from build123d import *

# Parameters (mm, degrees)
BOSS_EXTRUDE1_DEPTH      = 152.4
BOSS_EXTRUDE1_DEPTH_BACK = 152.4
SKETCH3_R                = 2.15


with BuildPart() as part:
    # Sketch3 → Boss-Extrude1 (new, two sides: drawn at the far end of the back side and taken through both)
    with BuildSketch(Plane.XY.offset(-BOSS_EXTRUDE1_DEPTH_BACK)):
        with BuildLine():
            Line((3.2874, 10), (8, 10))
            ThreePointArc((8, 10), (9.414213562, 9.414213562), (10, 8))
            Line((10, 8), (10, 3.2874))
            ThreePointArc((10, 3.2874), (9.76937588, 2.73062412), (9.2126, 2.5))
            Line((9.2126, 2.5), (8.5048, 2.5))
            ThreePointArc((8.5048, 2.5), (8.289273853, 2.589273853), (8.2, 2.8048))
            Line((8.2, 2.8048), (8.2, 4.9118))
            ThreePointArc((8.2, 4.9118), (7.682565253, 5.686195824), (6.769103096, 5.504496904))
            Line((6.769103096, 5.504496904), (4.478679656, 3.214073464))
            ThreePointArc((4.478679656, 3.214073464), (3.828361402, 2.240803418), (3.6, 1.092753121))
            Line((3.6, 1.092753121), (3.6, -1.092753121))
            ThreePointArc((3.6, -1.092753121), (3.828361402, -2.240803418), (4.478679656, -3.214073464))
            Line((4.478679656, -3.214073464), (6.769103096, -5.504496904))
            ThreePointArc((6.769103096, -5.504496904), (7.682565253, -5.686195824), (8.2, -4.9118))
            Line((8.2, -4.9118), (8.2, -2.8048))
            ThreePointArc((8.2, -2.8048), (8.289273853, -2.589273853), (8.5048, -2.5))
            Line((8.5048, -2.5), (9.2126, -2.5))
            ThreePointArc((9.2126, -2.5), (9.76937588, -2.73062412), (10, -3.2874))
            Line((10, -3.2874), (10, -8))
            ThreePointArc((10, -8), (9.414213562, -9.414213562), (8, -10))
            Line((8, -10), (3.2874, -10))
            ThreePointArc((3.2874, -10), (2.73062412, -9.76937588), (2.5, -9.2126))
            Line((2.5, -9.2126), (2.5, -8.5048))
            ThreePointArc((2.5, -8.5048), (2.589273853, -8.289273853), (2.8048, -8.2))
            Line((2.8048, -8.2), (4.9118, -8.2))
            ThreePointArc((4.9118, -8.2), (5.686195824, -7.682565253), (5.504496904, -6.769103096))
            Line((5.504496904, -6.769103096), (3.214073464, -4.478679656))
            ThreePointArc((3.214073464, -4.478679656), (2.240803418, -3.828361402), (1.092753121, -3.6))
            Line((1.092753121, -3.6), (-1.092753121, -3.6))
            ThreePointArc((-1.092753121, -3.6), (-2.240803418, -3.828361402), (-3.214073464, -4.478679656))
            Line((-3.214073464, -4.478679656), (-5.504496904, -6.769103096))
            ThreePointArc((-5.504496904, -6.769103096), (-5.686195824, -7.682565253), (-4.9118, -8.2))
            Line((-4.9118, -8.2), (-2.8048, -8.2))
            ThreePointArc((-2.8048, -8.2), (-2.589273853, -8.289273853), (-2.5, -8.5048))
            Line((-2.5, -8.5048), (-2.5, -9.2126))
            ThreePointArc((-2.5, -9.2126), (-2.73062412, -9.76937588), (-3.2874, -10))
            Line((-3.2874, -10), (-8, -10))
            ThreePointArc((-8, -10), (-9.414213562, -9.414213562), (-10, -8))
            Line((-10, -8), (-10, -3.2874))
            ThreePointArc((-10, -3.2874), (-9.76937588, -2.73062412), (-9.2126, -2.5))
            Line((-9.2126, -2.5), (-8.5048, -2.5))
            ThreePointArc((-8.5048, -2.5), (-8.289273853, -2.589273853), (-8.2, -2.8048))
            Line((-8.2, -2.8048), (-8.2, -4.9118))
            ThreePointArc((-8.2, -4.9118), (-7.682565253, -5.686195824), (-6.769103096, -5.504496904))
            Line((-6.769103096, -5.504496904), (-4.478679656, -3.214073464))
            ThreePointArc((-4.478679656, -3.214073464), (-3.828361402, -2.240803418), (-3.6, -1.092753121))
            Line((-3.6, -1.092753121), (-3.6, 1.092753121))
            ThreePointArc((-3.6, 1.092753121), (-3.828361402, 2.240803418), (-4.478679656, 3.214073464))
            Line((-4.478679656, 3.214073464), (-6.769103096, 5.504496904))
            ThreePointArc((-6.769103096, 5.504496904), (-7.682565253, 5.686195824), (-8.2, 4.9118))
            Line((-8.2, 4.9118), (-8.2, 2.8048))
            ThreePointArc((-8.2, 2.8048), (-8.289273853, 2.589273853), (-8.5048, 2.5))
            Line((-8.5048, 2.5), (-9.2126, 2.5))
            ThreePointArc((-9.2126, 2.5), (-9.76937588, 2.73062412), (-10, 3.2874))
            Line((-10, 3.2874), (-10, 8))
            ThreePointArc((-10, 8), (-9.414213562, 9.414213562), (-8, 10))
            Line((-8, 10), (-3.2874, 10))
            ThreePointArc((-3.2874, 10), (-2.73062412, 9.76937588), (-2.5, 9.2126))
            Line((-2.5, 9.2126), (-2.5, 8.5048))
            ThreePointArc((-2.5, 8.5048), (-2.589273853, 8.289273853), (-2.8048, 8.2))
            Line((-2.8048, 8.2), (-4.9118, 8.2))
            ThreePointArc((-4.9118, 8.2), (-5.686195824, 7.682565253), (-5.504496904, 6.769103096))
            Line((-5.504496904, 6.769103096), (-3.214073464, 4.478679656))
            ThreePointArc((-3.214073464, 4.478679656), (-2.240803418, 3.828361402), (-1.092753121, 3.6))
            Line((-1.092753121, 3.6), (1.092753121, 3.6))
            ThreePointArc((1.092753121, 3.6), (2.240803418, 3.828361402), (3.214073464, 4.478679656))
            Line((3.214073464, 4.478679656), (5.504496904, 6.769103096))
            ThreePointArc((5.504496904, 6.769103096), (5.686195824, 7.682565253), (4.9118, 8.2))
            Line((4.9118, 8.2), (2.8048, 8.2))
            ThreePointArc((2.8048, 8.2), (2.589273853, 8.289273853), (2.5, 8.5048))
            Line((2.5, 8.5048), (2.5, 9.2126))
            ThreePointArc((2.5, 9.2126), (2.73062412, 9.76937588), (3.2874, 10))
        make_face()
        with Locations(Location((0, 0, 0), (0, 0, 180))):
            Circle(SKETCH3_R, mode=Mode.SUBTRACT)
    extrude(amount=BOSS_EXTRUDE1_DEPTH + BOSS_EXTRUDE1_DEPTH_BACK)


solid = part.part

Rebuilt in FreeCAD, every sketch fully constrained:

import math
import FreeCAD as App
import Part
import Sketcher
Q = App.Units.Quantity

doc = App.newDocument("Part")
body = doc.addObject("PartDesign::Body", "Body")

sketch1 = doc.addObject("Sketcher::SketchObject", "Sketch")
body.addObject(sketch1)
sketch1.AttachmentSupport = (doc.XY_Plane, [""])
sketch1.MapMode = "FlatFace"
sketch1.addGeometry([
    Part.LineSegment(App.Vector(8, 10, 0), App.Vector(3.2874, 10, 0)),
    Part.ArcOfCircle(Part.Circle(App.Vector(3.2874, 9.2126, 0), App.Vector(0, 0, 1), 0.7874), math.radians(90), math.radians(180)),
    Part.LineSegment(App.Vector(2.5, 9.2126, 0), App.Vector(2.5, 8.5048, 0)),
    Part.ArcOfCircle(Part.Circle(App.Vector(2.8048, 8.5048, 0), App.Vector(0, 0, 1), 0.3048), math.radians(180), math.radians(270)),
    Part.LineSegment(App.Vector(2.8048, 8.2, 0), App.Vector(4.9118, 8.2, 0)),
    Part.ArcOfCircle(Part.Circle(App.Vector(4.9118, 7.3618, 0), App.Vector(0, 0, 1), 0.8382), math.radians(-45), math.radians(90)),
    Part.LineSegment(App.Vector(5.504497, 6.769103, 0), App.Vector(3.214073, 4.47868, 0)),
    Part.ArcOfCircle(Part.Circle(App.Vector(1.092753, 6.6, 0), App.Vector(0, 0, 1), 3), math.radians(-90), math.radians(-45)),
    Part.LineSegment(App.Vector(1.092753, 3.6, 0), App.Vector(-1.092753, 3.6, 0)),
    Part.ArcOfCircle(Part.Circle(App.Vector(-1.092753, 6.6, 0), App.Vector(0, 0, 1), 3), math.radians(-135), math.radians(-90)),
    Part.LineSegment(App.Vector(-3.214073, 4.47868, 0), App.Vector(-5.504497, 6.769103, 0)),
    Part.ArcOfCircle(Part.Circle(App.Vector(-4.9118, 7.3618, 0), App.Vector(0, 0, 1), 0.8382), math.radians(90), math.radians(225)),
    Part.LineSegment(App.Vector(-4.9118, 8.2, 0), App.Vector(-2.8048, 8.2, 0)),
    Part.ArcOfCircle(Part.Circle(App.Vector(-2.8048, 8.5048, 0), App.Vector(0, 0, 1), 0.3048), math.radians(-90), math.radians(0)),
    Part.LineSegment(App.Vector(-2.5, 8.5048, 0), App.Vector(-2.5, 9.2126, 0)),
    Part.ArcOfCircle(Part.Circle(App.Vector(-3.2874, 9.2126, 0), App.Vector(0, 0, 1), 0.7874), math.radians(0), math.radians(90)),
    Part.LineSegment(App.Vector(-3.2874, 10, 0), App.Vector(-8, 10, 0)),
    Part.ArcOfCircle(Part.Circle(App.Vector(-8, 8, 0), App.Vector(0, 0, 1), 2), math.radians(90), math.radians(180)),
    Part.LineSegment(App.Vector(-10, 8, 0), App.Vector(-10, 3.2874, 0)),
    Part.ArcOfCircle(Part.Circle(App.Vector(-9.2126, 3.2874, 0), App.Vector(0, 0, 1), 0.7874), math.radians(180), math.radians(270)),
    Part.LineSegment(App.Vector(-9.2126, 2.5, 0), App.Vector(-8.5048, 2.5, 0)),
    Part.ArcOfCircle(Part.Circle(App.Vector(-8.5048, 2.8048, 0), App.Vector(0, 0, 1), 0.3048), math.radians(-90), math.radians(0)),
    Part.LineSegment(App.Vector(-8.2, 2.8048, 0), App.Vector(-8.2, 4.9118, 0)),
    Part.ArcOfCircle(Part.Circle(App.Vector(-7.3618, 4.9118, 0), App.Vector(0, 0, 1), 0.8382), math.radians(45), math.radians(180)),
    Part.LineSegment(App.Vector(-6.769103, 5.504497, 0), App.Vector(-4.47868, 3.214073, 0)),
    Part.ArcOfCircle(Part.Circle(App.Vector(-6.6, 1.092753, 0), App.Vector(0, 0, 1), 3), math.radians(0), math.radians(45)),
    Part.LineSegment(App.Vector(-3.6, 1.092753, 0), App.Vector(-3.6, -1.092753, 0)),
    Part.ArcOfCircle(Part.Circle(App.Vector(-6.6, -1.092753, 0), App.Vector(0, 0, 1), 3), math.radians(-45), math.radians(0)),
    Part.LineSegment(App.Vector(-4.47868, -3.214073, 0), App.Vector(-6.769103, -5.504497, 0)),
    Part.ArcOfCircle(Part.Circle(App.Vector(-7.3618, -4.9118, 0), App.Vector(0, 0, 1), 0.8382), math.radians(180), math.radians(315)),
    Part.LineSegment(App.Vector(-8.2, -4.9118, 0), App.Vector(-8.2, -2.8048, 0)),
    Part.ArcOfCircle(Part.Circle(App.Vector(-8.5048, -2.8048, 0), App.Vector(0, 0, 1), 0.3048), math.radians(0), math.radians(90)),
    Part.LineSegment(App.Vector(-8.5048, -2.5, 0), App.Vector(-9.2126, -2.5, 0)),
    Part.ArcOfCircle(Part.Circle(App.Vector(-9.2126, -3.2874, 0), App.Vector(0, 0, 1), 0.7874), math.radians(90), math.radians(180)),
    Part.LineSegment(App.Vector(-10, -3.2874, 0), App.Vector(-10, -8, 0)),
    Part.ArcOfCircle(Part.Circle(App.Vector(-8, -8, 0), App.Vector(0, 0, 1), 2), math.radians(-180), math.radians(-90)),
    Part.LineSegment(App.Vector(-8, -10, 0), App.Vector(-3.2874, -10, 0)),
    Part.ArcOfCircle(Part.Circle(App.Vector(-3.2874, -9.2126, 0), App.Vector(0, 0, 1), 0.7874), math.radians(-90), math.radians(0)),
    Part.LineSegment(App.Vector(-2.5, -9.2126, 0), App.Vector(-2.5, -8.5048, 0)),
    Part.ArcOfCircle(Part.Circle(App.Vector(-2.8048, -8.5048, 0), App.Vector(0, 0, 1), 0.3048), math.radians(0), math.radians(90)),
    Part.LineSegment(App.Vector(-2.8048, -8.2, 0), App.Vector(-4.9118, -8.2, 0)),
    Part.ArcOfCircle(Part.Circle(App.Vector(-4.9118, -7.3618, 0), App.Vector(0, 0, 1), 0.8382), math.radians(135), math.radians(270)),
    Part.LineSegment(App.Vector(-5.504497, -6.769103, 0), App.Vector(-3.214073, -4.47868, 0)),
    Part.ArcOfCircle(Part.Circle(App.Vector(-1.092753, -6.6, 0), App.Vector(0, 0, 1), 3), math.radians(90), math.radians(135)),
    Part.LineSegment(App.Vector(-1.092753, -3.6, 0), App.Vector(1.092753, -3.6, 0)),
    Part.ArcOfCircle(Part.Circle(App.Vector(1.092753, -6.6, 0), App.Vector(0, 0, 1), 3), math.radians(45), math.radians(90)),
    Part.LineSegment(App.Vector(3.214073, -4.47868, 0), App.Vector(5.504497, -6.769103, 0)),
    Part.ArcOfCircle(Part.Circle(App.Vector(4.9118, -7.3618, 0), App.Vector(0, 0, 1), 0.8382), math.radians(-90), math.radians(45)),
    Part.LineSegment(App.Vector(4.9118, -8.2, 0), App.Vector(2.8048, -8.2, 0)),
    Part.ArcOfCircle(Part.Circle(App.Vector(2.8048, -8.5048, 0), App.Vector(0, 0, 1), 0.3048), math.radians(90), math.radians(180)),
    Part.LineSegment(App.Vector(2.5, -8.5048, 0), App.Vector(2.5, -9.2126, 0)),
    Part.ArcOfCircle(Part.Circle(App.Vector(3.2874, -9.2126, 0), App.Vector(0, 0, 1), 0.7874), math.radians(180), math.radians(270)),
    Part.LineSegment(App.Vector(3.2874, -10, 0), App.Vector(8, -10, 0)),
    Part.ArcOfCircle(Part.Circle(App.Vector(8, -8, 0), App.Vector(0, 0, 1), 2), math.radians(-90), math.radians(0)),
    Part.LineSegment(App.Vector(10, -8, 0), App.Vector(10, -3.2874, 0)),
    Part.ArcOfCircle(Part.Circle(App.Vector(9.2126, -3.2874, 0), App.Vector(0, 0, 1), 0.7874), math.radians(0), math.radians(90)),
    Part.LineSegment(App.Vector(9.2126, -2.5, 0), App.Vector(8.5048, -2.5, 0)),
    Part.ArcOfCircle(Part.Circle(App.Vector(8.5048, -2.8048, 0), App.Vector(0, 0, 1), 0.3048), math.radians(90), math.radians(180)),
    Part.LineSegment(App.Vector(8.2, -2.8048, 0), App.Vector(8.2, -4.9118, 0)),
    Part.ArcOfCircle(Part.Circle(App.Vector(7.3618, -4.9118, 0), App.Vector(0, 0, 1), 0.8382), math.radians(-135), math.radians(0)),
    Part.LineSegment(App.Vector(6.769103, -5.504497, 0), App.Vector(4.47868, -3.214073, 0)),
    Part.ArcOfCircle(Part.Circle(App.Vector(6.6, -1.092753, 0), App.Vector(0, 0, 1), 3), math.radians(180), math.radians(225)),
    Part.LineSegment(App.Vector(3.6, -1.092753, 0), App.Vector(3.6, 1.092753, 0)),
    Part.ArcOfCircle(Part.Circle(App.Vector(6.6, 1.092753, 0), App.Vector(0, 0, 1), 3), math.radians(135), math.radians(180)),
    Part.LineSegment(App.Vector(4.47868, 3.214073, 0), App.Vector(6.769103, 5.504497, 0)),
    Part.ArcOfCircle(Part.Circle(App.Vector(7.3618, 4.9118, 0), App.Vector(0, 0, 1), 0.8382), math.radians(0), math.radians(135)),
    Part.LineSegment(App.Vector(8.2, 4.9118, 0), App.Vector(8.2, 2.8048, 0)),
    Part.ArcOfCircle(Part.Circle(App.Vector(8.5048, 2.8048, 0), App.Vector(0, 0, 1), 0.3048), math.radians(180), math.radians(270)),
    Part.LineSegment(App.Vector(8.5048, 2.5, 0), App.Vector(9.2126, 2.5, 0)),
    Part.ArcOfCircle(Part.Circle(App.Vector(9.2126, 3.2874, 0), App.Vector(0, 0, 1), 0.7874), math.radians(-90), math.radians(0)),
    Part.LineSegment(App.Vector(10, 3.2874, 0), App.Vector(10, 8, 0)),
    Part.ArcOfCircle(Part.Circle(App.Vector(8, 8, 0), App.Vector(0, 0, 1), 2), math.radians(0), math.radians(90)),
    Part.Circle(App.Vector(0, 0, 0), App.Vector(0, 0, 1), 2.15),
], False)
sketch1.addConstraint([
    Sketcher.Constraint("Tangent", 0, 2, 1, 1),
    Sketcher.Constraint("Tangent", 1, 2, 2, 1),
    Sketcher.Constraint("Tangent", 2, 2, 3, 1),
    Sketcher.Constraint("Tangent", 3, 2, 4, 1),
    Sketcher.Constraint("Tangent", 4, 2, 5, 2),
    Sketcher.Constraint("Tangent", 5, 1, 6, 1),
    Sketcher.Constraint("Tangent", 6, 2, 7, 2),
    Sketcher.Constraint("Tangent", 7, 1, 8, 1),
    Sketcher.Constraint("Tangent", 8, 2, 9, 2),
    Sketcher.Constraint("Tangent", 9, 1, 10, 1),
    Sketcher.Constraint("Tangent", 10, 2, 11, 2),
    Sketcher.Constraint("Tangent", 11, 1, 12, 1),
    Sketcher.Constraint("Tangent", 12, 2, 13, 1),
    Sketcher.Constraint("Tangent", 13, 2, 14, 1),
    Sketcher.Constraint("Tangent", 14, 2, 15, 1),
    Sketcher.Constraint("Tangent", 15, 2, 16, 1),
    Sketcher.Constraint("Tangent", 16, 2, 17, 1),
    Sketcher.Constraint("Tangent", 17, 2, 18, 1),
    Sketcher.Constraint("Tangent", 18, 2, 19, 1),
    Sketcher.Constraint("Tangent", 19, 2, 20, 1),
    Sketcher.Constraint("Tangent", 20, 2, 21, 1),
    Sketcher.Constraint("Tangent", 21, 2, 22, 1),
    Sketcher.Constraint("Tangent", 22, 2, 23, 2),
    Sketcher.Constraint("Tangent", 23, 1, 24, 1),
    Sketcher.Constraint("Tangent", 24, 2, 25, 2),
    Sketcher.Constraint("Tangent", 25, 1, 26, 1),
    Sketcher.Constraint("Tangent", 26, 2, 27, 2),
    Sketcher.Constraint("Tangent", 27, 1, 28, 1),
    Sketcher.Constraint("Tangent", 28, 2, 29, 2),
    Sketcher.Constraint("Tangent", 29, 1, 30, 1),
    Sketcher.Constraint("Tangent", 30, 2, 31, 1),
    Sketcher.Constraint("Tangent", 31, 2, 32, 1),
    Sketcher.Constraint("Tangent", 32, 2, 33, 1),
    Sketcher.Constraint("Tangent", 33, 2, 34, 1),
    Sketcher.Constraint("Tangent", 34, 2, 35, 1),
    Sketcher.Constraint("Tangent", 35, 2, 36, 1),
    Sketcher.Constraint("Tangent", 36, 2, 37, 1),
    Sketcher.Constraint("Tangent", 37, 2, 38, 1),
    Sketcher.Constraint("Tangent", 38, 2, 39, 1),
    Sketcher.Constraint("Tangent", 39, 2, 40, 1),
    Sketcher.Constraint("Tangent", 40, 2, 41, 2),
    Sketcher.Constraint("Tangent", 41, 1, 42, 1),
    Sketcher.Constraint("Tangent", 42, 2, 43, 2),
    Sketcher.Constraint("Tangent", 43, 1, 44, 1),
    Sketcher.Constraint("Tangent", 44, 2, 45, 2),
    Sketcher.Constraint("Tangent", 45, 1, 46, 1),
    Sketcher.Constraint("Tangent", 46, 2, 47, 2),
    Sketcher.Constraint("Tangent", 47, 1, 48, 1),
    Sketcher.Constraint("Tangent", 48, 2, 49, 1),
    Sketcher.Constraint("Tangent", 49, 2, 50, 1),
    Sketcher.Constraint("Tangent", 50, 2, 51, 1),
    Sketcher.Constraint("Tangent", 51, 2, 52, 1),
    Sketcher.Constraint("Tangent", 52, 2, 53, 1),
    Sketcher.Constraint("Tangent", 53, 2, 54, 1),
    Sketcher.Constraint("Tangent", 54, 2, 55, 1),
    Sketcher.Constraint("Tangent", 55, 2, 56, 1),
    Sketcher.Constraint("Tangent", 56, 2, 57, 1),
    Sketcher.Constraint("Tangent", 57, 2, 58, 1),
    Sketcher.Constraint("Tangent", 58, 2, 59, 2),
    Sketcher.Constraint("Tangent", 59, 1, 60, 1),
    Sketcher.Constraint("Tangent", 60, 2, 61, 2),
    Sketcher.Constraint("Tangent", 61, 1, 62, 1),
    Sketcher.Constraint("Tangent", 62, 2, 63, 2),
    Sketcher.Constraint("Tangent", 63, 1, 64, 1),
    Sketcher.Constraint("Tangent", 64, 2, 65, 2),
    Sketcher.Constraint("Tangent", 65, 1, 66, 1),
    Sketcher.Constraint("Tangent", 66, 2, 67, 1),
    Sketcher.Constraint("Tangent", 67, 2, 68, 1),
    Sketcher.Constraint("Tangent", 68, 2, 69, 1),
    Sketcher.Constraint("Tangent", 69, 2, 70, 1),
    Sketcher.Constraint("Tangent", 70, 2, 71, 1),
    Sketcher.Constraint("Tangent", 71, 2, 0, 1),
    Sketcher.Constraint("Horizontal", 0),
    Sketcher.Constraint("Vertical", 2),
    Sketcher.Constraint("Horizontal", 4),
    Sketcher.Constraint("Horizontal", 8),
    Sketcher.Constraint("Horizontal", 12),
    Sketcher.Constraint("Vertical", 14),
    Sketcher.Constraint("Horizontal", 16),
    Sketcher.Constraint("Vertical", 18),
    Sketcher.Constraint("Horizontal", 20),
    Sketcher.Constraint("Vertical", 22),
    Sketcher.Constraint("Vertical", 26),
    Sketcher.Constraint("Vertical", 30),
    Sketcher.Constraint("Horizontal", 32),
    Sketcher.Constraint("Vertical", 34),
    Sketcher.Constraint("Horizontal", 36),
    Sketcher.Constraint("Vertical", 38),
    Sketcher.Constraint("Horizontal", 40),
    Sketcher.Constraint("Horizontal", 44),
    Sketcher.Constraint("Horizontal", 48),
    Sketcher.Constraint("Vertical", 50),
    Sketcher.Constraint("Horizontal", 52),
    Sketcher.Constraint("Vertical", 54),
    Sketcher.Constraint("Horizontal", 56),
    Sketcher.Constraint("Vertical", 58),
    Sketcher.Constraint("Vertical", 62),
    Sketcher.Constraint("Vertical", 66),
    Sketcher.Constraint("Horizontal", 68),
    Sketcher.Constraint("Vertical", 70),
    Sketcher.Constraint("Coincident", 72, 3, -1, 1),
    Sketcher.Constraint("Equal", 7, 9),
    Sketcher.Constraint("Equal", 5, 11),
    Sketcher.Constraint("Equal", 3, 13),
    Sketcher.Constraint("Equal", 1, 15),
    Sketcher.Constraint("Equal", 15, 19),
    Sketcher.Constraint("Equal", 13, 21),
    Sketcher.Constraint("Equal", 11, 23),
    Sketcher.Constraint("Equal", 9, 25),
    Sketcher.Constraint("Equal", 25, 27),
    Sketcher.Constraint("Equal", 23, 29),
    Sketcher.Constraint("Equal", 21, 31),
    Sketcher.Constraint("Equal", 19, 33),
    Sketcher.Constraint("Equal", 17, 35),
    Sketcher.Constraint("Equal", 33, 37),
    Sketcher.Constraint("Equal", 31, 39),
    Sketcher.Constraint("Equal", 29, 41),
    Sketcher.Constraint("Equal", 27, 43),
    Sketcher.Constraint("Equal", 43, 45),
    Sketcher.Constraint("Equal", 41, 47),
    Sketcher.Constraint("Equal", 39, 49),
    Sketcher.Constraint("Equal", 37, 51),
    Sketcher.Constraint("Equal", 35, 53),
    Sketcher.Constraint("Equal", 51, 55),
    Sketcher.Constraint("Equal", 49, 57),
    Sketcher.Constraint("Equal", 47, 59),
    Sketcher.Constraint("Equal", 45, 61),
    Sketcher.Constraint("Equal", 61, 63),
    Sketcher.Constraint("Equal", 59, 65),
    Sketcher.Constraint("Equal", 57, 67),
    Sketcher.Constraint("Equal", 55, 69),
    Sketcher.Constraint("Equal", 53, 71),
    Sketcher.Constraint("Symmetric", 1, 3, 37, 3, -1, 1),
    Sketcher.Constraint("Symmetric", 5, 3, 41, 3, -1, 1),
    Sketcher.Constraint("Symmetric", 7, 3, 43, 3, -1, 1),
    Sketcher.Constraint("Symmetric", 11, 3, 47, 3, -1, 1),
    Sketcher.Constraint("Symmetric", 15, 3, 51, 3, -1, 1),
    Sketcher.Constraint("Symmetric", 19, 3, 55, 3, -1, 1),
    Sketcher.Constraint("Symmetric", 23, 3, 59, 3, -1, 1),
    Sketcher.Constraint("Symmetric", 25, 3, 61, 3, -1, 1),
    Sketcher.Constraint("Symmetric", 29, 3, 65, 3, -1, 1),
    Sketcher.Constraint("Symmetric", 33, 3, 69, 3, -1, 1),
    Sketcher.Constraint("Symmetric", 5, 3, 11, 3, -2),
    Sketcher.Constraint("Symmetric", 1, 3, 15, 3, -2),
    Sketcher.Constraint("Symmetric", 33, 3, 55, 3, -2),
    Sketcher.Constraint("Symmetric", 29, 3, 59, 3, -2),
    Sketcher.Constraint("Perpendicular", 6, 10),
    Sketcher.Constraint("Parallel", 10, 24),
    Sketcher.Constraint("Perpendicular", 24, 28),
    Sketcher.Constraint("Perpendicular", 42, 46),
    Sketcher.Constraint("Perpendicular", 60, 64),
    Sketcher.Constraint("Horizontal", 27, 3, 61, 3),
    Sketcher.Constraint("Equal", 68, 2),
    Sketcher.Constraint("Equal", 52, 18),
    Sketcher.Constraint("Equal", 48, 22),
    Sketcher.Constraint("Equal", 44, 26),
    Sketcher.Constraint("Equal", 10, 24),
    Sketcher.Constraint("Radius", 1, Q("0.031 in")),
    Sketcher.Constraint("Radius", 3, Q("0.012 in")),
    Sketcher.Constraint("Radius", 5, Q("0.033 in")),
    Sketcher.Constraint("Diameter", 72, 4.3),
    Sketcher.Constraint("Radius", 7, 3.0),
    Sketcher.Constraint("Radius", 17, 2.0),
    Sketcher.Constraint("DistanceX", 0, 2, 0, 1, 4.7126),
    Sketcher.Constraint("DistanceX", 4, 1, 4, 2, 2.107),
    Sketcher.Constraint("DistanceX", 20, 1, 20, 2, 0.7078),
    Sketcher.Constraint("DistanceY", -1, 1, 5, 1, Q("0.2665001 in")),
    Sketcher.Constraint("DistanceY", -1, 1, 7, 3, 6.6),
])
pad1 = doc.addObject("PartDesign::Pad", "Pad")
body.addObject(pad1)
pad1.Profile = sketch1
pad1.Type = "TwoLengths"
pad1.Length = Q("6 in")
pad1.Length2 = Q("6 in")

doc.recompute()
